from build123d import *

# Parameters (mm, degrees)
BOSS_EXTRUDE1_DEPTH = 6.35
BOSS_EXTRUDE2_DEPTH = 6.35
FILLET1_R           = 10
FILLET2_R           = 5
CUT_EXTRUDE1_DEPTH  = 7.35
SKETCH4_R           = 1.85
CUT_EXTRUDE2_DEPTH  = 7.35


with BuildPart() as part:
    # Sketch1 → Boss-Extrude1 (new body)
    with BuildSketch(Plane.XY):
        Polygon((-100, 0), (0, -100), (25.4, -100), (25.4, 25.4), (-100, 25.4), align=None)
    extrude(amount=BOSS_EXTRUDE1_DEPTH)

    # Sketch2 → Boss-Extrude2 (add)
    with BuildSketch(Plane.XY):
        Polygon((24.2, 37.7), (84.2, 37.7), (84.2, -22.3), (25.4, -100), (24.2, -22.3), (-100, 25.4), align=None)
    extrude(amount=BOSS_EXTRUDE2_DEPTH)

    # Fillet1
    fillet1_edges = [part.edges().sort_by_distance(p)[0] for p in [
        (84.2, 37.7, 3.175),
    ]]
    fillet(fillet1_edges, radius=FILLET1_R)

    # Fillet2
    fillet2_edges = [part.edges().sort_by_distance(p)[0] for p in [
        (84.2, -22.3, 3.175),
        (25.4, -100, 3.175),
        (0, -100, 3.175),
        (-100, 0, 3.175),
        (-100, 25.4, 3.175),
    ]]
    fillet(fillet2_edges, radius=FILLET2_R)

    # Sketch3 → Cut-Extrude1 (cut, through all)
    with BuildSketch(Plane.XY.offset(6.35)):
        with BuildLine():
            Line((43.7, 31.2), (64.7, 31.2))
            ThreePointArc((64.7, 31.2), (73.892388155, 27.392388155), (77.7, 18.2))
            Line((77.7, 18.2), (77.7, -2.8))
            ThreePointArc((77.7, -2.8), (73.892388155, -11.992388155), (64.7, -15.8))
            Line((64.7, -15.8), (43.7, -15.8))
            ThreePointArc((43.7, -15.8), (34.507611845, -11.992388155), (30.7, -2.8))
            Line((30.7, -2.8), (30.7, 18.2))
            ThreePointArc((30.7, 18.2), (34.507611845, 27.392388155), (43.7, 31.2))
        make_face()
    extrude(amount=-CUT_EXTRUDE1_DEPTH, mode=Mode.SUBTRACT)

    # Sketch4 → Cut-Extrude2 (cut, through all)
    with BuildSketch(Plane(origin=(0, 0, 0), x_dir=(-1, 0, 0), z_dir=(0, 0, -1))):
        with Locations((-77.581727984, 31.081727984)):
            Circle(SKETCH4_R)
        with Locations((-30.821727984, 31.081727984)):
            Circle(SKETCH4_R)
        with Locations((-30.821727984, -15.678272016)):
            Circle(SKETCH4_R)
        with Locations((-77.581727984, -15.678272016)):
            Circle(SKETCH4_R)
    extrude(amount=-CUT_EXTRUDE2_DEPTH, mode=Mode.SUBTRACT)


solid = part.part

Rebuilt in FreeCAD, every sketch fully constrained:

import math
import FreeCAD as App
import Part
import Sketcher
Q = App.Units.Quantity


def edges_at(feature, points):
    """Names of the edges that pass closest to the given points."""
    edges = feature.Shape.Edges
    near = lambda p: min(range(len(edges)), key=lambda i: edges[i].distToShape(Part.Vertex(*p))[0])
    return sorted({f"Edge{near(p) + 1}" for p in points})

doc = App.newDocument("Part")
body = doc.addObject("PartDesign::Body", "Body")

sketch1 = body.newObject("Sketcher::SketchObject", "Sketch")
sketch1.AttachmentSupport = (doc.getObject("XY_Plane"), [""])
sketch1.MapMode = "FlatFace"
sketch1.addGeometry([
    Part.LineSegment(App.Vector(-100, 0, 0), App.Vector(0, -100, 0)),
    Part.LineSegment(App.Vector(0, -100, 0), App.Vector(25, -100, 0)),
    Part.LineSegment(App.Vector(25, -100, 0), App.Vector(25, 25, 0)),
    Part.LineSegment(App.Vector(25, 25, 0), App.Vector(-100, 25, 0)),
    Part.LineSegment(App.Vector(-100, 25, 0), App.Vector(-100, 0, 0)),
], False)
sketch1.addConstraint([
    Sketcher.Constraint("Coincident", 0, 2, 1, 1),
    Sketcher.Constraint("Coincident", 1, 2, 2, 1),
    Sketcher.Constraint("Coincident", 2, 2, 3, 1),
    Sketcher.Constraint("Coincident", 3, 2, 4, 1),
    Sketcher.Constraint("Coincident", 4, 2, 0, 1),
    Sketcher.Constraint("Horizontal", 1),
    Sketcher.Constraint("Vertical", 2),
    Sketcher.Constraint("Horizontal", 3),
    Sketcher.Constraint("Vertical", 4),
    Sketcher.Constraint("PointOnObject", 0, 2, -2),
    Sketcher.Constraint("PointOnObject", 4, 2, -1),
    Sketcher.Constraint("Equal", 3, 2),
    Sketcher.Constraint("Equal", 1, 4),
    Sketcher.Constraint("DistanceX", 1, 1, 1, 2, Q("25.4 mm")),
    Sketcher.Constraint("DistanceX", 3, 2, 3, 1, Q("125.4 mm")),
])
pad1 = body.newObject("PartDesign::Pad", "Pad")
pad1.Profile = sketch1
pad1.Length = 6.35

sketch2 = body.newObject("Sketcher::SketchObject", "Sketch001")
sketch2.AttachmentSupport = (doc.getObject("XY_Plane"), [""])
sketch2.MapMode = "FlatFace"
sketch2.addGeometry([
    Part.LineSegment(App.Vector(84, 38, 0), App.Vector(24, 38, 0)),
    Part.LineSegment(App.Vector(24, 38, 0), App.Vector(-100, 25, 0)),
    Part.LineSegment(App.Vector(-100, 25, 0), App.Vector(24, -22, 0)),
    Part.LineSegment(App.Vector(24, -22, 0), App.Vector(25, -100, 0)),
    Part.LineSegment(App.Vector(25, -100, 0), App.Vector(84, -22, 0)),
    Part.LineSegment(App.Vector(84, -22, 0), App.Vector(84, 38, 0)),
], False)
sketch2.addConstraint([
    Sketcher.Constraint("Coincident", 0, 2, 1, 1),
    Sketcher.Constraint("Coincident", 1, 2, 2, 1),
    Sketcher.Constraint("Coincident", 2, 2, 3, 1),
    Sketcher.Constraint("Coincident", 3, 2, 4, 1),
    Sketcher.Constraint("Coincident", 4, 2, 5, 1),
    Sketcher.Constraint("Coincident", 5, 2, 0, 1),
    Sketcher.Constraint("Horizontal", 0),
    Sketcher.Constraint("Vertical", 5),
    Sketcher.Constraint("Horizontal", 2, 2, 4, 2),
    Sketcher.Constraint("Vertical", 0, 2, 2, 2),
    Sketcher.Constraint("Equal", 0, 5),
    Sketcher.Constraint("DistanceX", 0, 2, 0, 1, Q("60 mm")),
    Sketcher.Constraint("DistanceX", 1, 2, -1, 1, Q("100 mm")),
    Sketcher.Constraint("DistanceY", 3, 2, -1, 1, Q("100 mm")),
    Sketcher.Constraint("DistanceX", -1, 1, 0, 2, Q("24.2 mm")),
    Sketcher.Constraint("DistanceY", -1, 1, 0, 2, Q("37.7 mm")),
    Sketcher.Constraint("DistanceY", -1, 1, 1, 2, Q("25.4 mm")),
    Sketcher.Constraint("DistanceX", -1, 1, 3, 2, Q("25.4 mm")),
])
pad2 = body.newObject("PartDesign::Pad", "Pad001")
pad2.Profile = sketch2
pad2.Length = 6.35
doc.recompute()

fillet = body.newObject("PartDesign::Fillet", "Fillet")
fillet.Base = (pad2, edges_at(pad2, [(84.2, 37.7, 3.175)]))
fillet.Radius = 10
doc.recompute()

fillet2 = body.newObject("PartDesign::Fillet", "Fillet001")
fillet2.Base = (fillet, edges_at(fillet, [
    (84.2, -22.3, 3.175),
    (25.4, -100, 3.175),
    (0, -100, 3.175),
    (-100, 0, 3.175),
    (-100, 25.4, 3.175),
]))
fillet2.Radius = 5

sketch3 = body.newObject("Sketcher::SketchObject", "Sketch002")
sketch3.AttachmentSupport = (doc.getObject("XY_Plane"), [""])
sketch3.MapMode = "FlatFace"
sketch3.AttachmentOffset = App.Placement(App.Vector(0, 0, 6.35), App.Rotation())
sketch3.addGeometry([
    Part.LineSegment(App.Vector(65, 31, 0), App.Vector(44, 31, 0)),
    Part.ArcOfCircle(Part.Circle(App.Vector(44, 18, 0), App.Vector(0, 0, 1), 13), math.radians(90), math.radians(180)),
    Part.LineSegment(App.Vector(31, 18, 0), App.Vector(31, -3, 0)),
    Part.ArcOfCircle(Part.Circle(App.Vector(44, -3, 0), App.Vector(0, 0, 1), 13), math.radians(-180), math.radians(-90)),
    Part.LineSegment(App.Vector(44, -16, 0), App.Vector(65, -16, 0)),
    Part.ArcOfCircle(Part.Circle(App.Vector(65, -3, 0), App.Vector(0, 0, 1), 13), math.radians(-90), math.radians(0)),
    Part.LineSegment(App.Vector(78, -3, 0), App.Vector(78, 18, 0)),
    Part.ArcOfCircle(Part.Circle(App.Vector(65, 18, 0), App.Vector(0, 0, 1), 13), math.radians(0), math.radians(90)),
], False)
sketch3.addConstraint([
    Sketcher.Constraint("Tangent", 0, 2, 1, 1),
    Sketcher.Constraint("Tangent", 1, 2, 2, 1),
    Sketcher.Constraint("Tangent", 2, 2, 3, 1),
    Sketcher.Constraint("Tangent", 3, 2, 4, 1),
    Sketcher.Constraint("Tangent", 4, 2, 5, 1),
    Sketcher.Constraint("Tangent", 5, 2, 6, 1),
    Sketcher.Constraint("Tangent", 6, 2, 7, 1),
    Sketcher.Constraint("Tangent", 7, 2, 0, 1),
    Sketcher.Constraint("Horizontal", 0),
    Sketcher.Constraint("Vertical", 2),
    Sketcher.Constraint("Horizontal", 4),
    Sketcher.Constraint("Vertical", 6),
    Sketcher.Constraint("Equal", 1, 3),
    Sketcher.Constraint("Equal", 3, 5),
    Sketcher.Constraint("Equal", 5, 7),
    Sketcher.Constraint("Equal", 4, 2),
    Sketcher.Constraint("Radius", 1, Q("13 mm")),
    Sketcher.Constraint("DistanceX", 0, 2, 0, 1, Q("21 mm")),
    Sketcher.Constraint("DistanceX", -1, 1, 1, 3, Q("43.7 mm")),
    Sketcher.Constraint("DistanceY", -1, 1, 1, 3, Q("18.2 mm")),
])
pocket1 = body.newObject("PartDesign::Pocket", "Pocket")
pocket1.Profile = sketch3
pocket1.Type = "ThroughAll"

sketch4 = body.newObject("Sketcher::SketchObject", "Sketch003")
sketch4.AttachmentSupport = (doc.getObject("XY_Plane"), [""])
sketch4.MapMode = "FlatFace"
sketch4.addGeometry([
    Part.Circle(App.Vector(77.6, 31.1, 0), App.Vector(0, 0, 1), 1.9),
    Part.Circle(App.Vector(30.8, 31.1, 0), App.Vector(0, 0, 1), 1.9),
    Part.Circle(App.Vector(30.8, -15.7, 0), App.Vector(0, 0, 1), 1.9),
    Part.Circle(App.Vector(77.6, -15.7, 0), App.Vector(0, 0, 1), 1.9),
], False)
sketch4.addConstraint([
    Sketcher.Constraint("Equal", 0, 1),
    Sketcher.Constraint("Equal", 1, 2),
    Sketcher.Constraint("Equal", 2, 3),
    Sketcher.Constraint("Horizontal", 0, 3, 1, 3),
    Sketcher.Constraint("Horizontal", 2, 3, 3, 3),
    Sketcher.Constraint("Vertical", 1, 3, 2, 3),
    Sketcher.Constraint("Vertical", 0, 3, 3, 3),
    Sketcher.Constraint("Diameter", 0, Q("3.7 mm")),
    Sketcher.Constraint("DistanceX", 1, 3, 0, 3, Q("46.76 mm")),
    Sketcher.Constraint("DistanceY", 2, 3, 1, 3, Q("46.76 mm")),
    Sketcher.Constraint("DistanceX", -1, 1, 0, 3, Q("77.581728 mm")),
    Sketcher.Constraint("DistanceY", -1, 1, 0, 3, Q("31.081728 mm")),
])
pocket2 = body.newObject("PartDesign::Pocket", "Pocket001")
pocket2.Profile = sketch4
pocket2.Type = "ThroughAll"
pocket2.Reversed = True

doc.recompute()
